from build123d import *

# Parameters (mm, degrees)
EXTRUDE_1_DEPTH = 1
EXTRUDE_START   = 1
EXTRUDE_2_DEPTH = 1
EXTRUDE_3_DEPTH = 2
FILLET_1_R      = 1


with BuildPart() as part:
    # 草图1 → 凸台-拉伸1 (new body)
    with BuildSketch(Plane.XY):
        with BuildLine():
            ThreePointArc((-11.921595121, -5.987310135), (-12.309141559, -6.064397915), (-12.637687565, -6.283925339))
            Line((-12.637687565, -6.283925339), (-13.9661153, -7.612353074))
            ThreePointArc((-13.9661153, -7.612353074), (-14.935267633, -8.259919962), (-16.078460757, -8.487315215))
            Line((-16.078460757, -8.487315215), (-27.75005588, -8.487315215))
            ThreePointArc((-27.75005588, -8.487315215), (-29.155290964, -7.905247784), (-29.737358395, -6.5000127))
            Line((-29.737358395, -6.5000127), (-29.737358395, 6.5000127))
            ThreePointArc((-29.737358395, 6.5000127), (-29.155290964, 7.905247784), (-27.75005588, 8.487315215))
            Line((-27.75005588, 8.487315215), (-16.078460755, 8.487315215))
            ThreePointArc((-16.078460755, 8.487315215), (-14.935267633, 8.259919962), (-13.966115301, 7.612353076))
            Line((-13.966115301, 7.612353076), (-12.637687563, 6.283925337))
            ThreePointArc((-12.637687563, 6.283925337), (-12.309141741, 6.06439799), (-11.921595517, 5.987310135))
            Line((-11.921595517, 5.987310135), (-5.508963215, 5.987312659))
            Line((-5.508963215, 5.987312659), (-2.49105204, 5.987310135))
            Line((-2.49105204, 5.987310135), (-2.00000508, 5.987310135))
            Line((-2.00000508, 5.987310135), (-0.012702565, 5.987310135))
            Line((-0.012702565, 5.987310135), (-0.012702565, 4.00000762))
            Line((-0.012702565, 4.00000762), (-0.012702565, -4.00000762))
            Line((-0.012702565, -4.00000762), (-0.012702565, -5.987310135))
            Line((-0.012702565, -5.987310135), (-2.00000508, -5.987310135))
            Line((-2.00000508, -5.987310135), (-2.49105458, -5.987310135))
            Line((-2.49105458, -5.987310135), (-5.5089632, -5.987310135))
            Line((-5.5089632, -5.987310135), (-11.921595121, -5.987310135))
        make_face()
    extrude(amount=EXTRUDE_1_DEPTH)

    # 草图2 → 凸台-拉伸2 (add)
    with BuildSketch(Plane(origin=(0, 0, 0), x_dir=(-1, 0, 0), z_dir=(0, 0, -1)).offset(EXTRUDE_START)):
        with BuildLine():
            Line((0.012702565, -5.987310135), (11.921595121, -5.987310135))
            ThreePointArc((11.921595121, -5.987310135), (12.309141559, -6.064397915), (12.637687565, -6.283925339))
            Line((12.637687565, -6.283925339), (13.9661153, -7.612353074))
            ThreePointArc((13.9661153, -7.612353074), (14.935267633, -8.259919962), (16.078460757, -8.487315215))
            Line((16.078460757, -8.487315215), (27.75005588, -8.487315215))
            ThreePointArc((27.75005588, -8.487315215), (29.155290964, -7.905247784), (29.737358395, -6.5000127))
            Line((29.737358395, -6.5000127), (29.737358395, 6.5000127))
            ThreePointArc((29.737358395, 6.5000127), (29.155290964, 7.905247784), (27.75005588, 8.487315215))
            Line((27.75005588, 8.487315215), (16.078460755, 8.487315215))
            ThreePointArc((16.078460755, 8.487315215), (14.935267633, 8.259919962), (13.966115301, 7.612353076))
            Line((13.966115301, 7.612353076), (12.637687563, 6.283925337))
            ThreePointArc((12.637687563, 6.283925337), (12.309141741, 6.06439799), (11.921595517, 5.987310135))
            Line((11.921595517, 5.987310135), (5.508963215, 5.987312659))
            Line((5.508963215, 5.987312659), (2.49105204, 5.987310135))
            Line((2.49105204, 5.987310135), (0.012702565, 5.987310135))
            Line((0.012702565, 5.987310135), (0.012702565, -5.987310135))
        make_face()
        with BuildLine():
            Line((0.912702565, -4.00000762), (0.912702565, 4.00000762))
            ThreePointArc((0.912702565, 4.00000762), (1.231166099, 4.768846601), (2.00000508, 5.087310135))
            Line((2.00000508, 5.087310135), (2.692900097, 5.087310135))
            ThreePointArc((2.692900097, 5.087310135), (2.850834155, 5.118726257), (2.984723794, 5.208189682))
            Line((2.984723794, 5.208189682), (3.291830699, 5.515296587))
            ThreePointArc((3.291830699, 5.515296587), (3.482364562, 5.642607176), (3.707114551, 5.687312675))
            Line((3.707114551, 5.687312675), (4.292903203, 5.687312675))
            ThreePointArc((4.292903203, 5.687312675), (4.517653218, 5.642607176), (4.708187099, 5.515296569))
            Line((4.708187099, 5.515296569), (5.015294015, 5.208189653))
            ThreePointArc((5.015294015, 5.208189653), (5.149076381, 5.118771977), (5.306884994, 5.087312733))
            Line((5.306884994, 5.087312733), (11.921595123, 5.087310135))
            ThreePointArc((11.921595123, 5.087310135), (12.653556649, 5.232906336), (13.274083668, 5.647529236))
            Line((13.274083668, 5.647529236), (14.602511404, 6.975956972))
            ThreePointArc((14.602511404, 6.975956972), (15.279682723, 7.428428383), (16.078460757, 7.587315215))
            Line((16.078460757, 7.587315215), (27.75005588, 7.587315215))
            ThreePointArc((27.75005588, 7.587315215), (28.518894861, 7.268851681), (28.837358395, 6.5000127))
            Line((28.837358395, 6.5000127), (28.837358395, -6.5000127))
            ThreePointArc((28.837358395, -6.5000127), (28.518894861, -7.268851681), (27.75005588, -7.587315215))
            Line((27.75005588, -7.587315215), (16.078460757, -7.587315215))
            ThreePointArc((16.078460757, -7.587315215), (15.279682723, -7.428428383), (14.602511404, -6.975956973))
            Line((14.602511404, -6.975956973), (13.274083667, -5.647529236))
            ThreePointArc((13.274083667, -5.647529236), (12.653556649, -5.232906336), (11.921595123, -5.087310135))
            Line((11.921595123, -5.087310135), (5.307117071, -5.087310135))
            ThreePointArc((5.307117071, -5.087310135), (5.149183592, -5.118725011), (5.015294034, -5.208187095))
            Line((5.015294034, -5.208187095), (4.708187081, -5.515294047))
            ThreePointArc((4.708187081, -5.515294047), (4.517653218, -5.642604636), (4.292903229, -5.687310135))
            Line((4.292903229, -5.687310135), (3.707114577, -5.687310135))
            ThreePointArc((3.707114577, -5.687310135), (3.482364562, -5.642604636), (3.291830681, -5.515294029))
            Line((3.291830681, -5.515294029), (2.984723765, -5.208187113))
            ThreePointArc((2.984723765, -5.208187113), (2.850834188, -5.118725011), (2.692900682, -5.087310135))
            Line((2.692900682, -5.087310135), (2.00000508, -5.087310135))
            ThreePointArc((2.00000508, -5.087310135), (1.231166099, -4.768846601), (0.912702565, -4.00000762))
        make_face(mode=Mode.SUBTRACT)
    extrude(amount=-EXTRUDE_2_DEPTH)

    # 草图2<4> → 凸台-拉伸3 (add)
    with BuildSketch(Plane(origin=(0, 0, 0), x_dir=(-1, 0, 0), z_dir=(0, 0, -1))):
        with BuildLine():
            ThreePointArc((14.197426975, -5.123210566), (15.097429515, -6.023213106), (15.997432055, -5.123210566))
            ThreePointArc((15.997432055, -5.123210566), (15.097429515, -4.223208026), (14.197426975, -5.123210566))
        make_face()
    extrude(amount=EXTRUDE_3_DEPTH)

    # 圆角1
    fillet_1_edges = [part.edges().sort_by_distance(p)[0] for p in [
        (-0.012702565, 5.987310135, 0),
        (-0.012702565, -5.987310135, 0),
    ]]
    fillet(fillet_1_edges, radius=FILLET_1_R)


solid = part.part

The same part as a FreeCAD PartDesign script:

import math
import FreeCAD as App
import Part
import Sketcher
Q = App.Units.Quantity


def edges_at(feature, points):
    """Names of the edges that pass closest to the given points."""
    edges = feature.Shape.Edges
    near = lambda p: min(range(len(edges)), key=lambda i: edges[i].distToShape(Part.Vertex(*p))[0])
    return sorted({f"Edge{near(p) + 1}" for p in points})

doc = App.newDocument("Part")
body = doc.addObject("PartDesign::Body", "Body")

# Sketch on XY plane
sketch1 = body.newObject("Sketcher::SketchObject", "Sketch")
sketch1.AttachmentSupport = (doc.getObject("XY_Plane"), [""])
sketch1.MapMode = "FlatFace"
sketch1.addGeometry([
    Part.ArcOfCircle(Part.Circle(App.Vector(-11.921595, -7.000018, 0), App.Vector(0, 0, 1), 1.012708), math.radians(90), math.radians(135)),  # 0
    Part.LineSegment(App.Vector(-11.921595, -5.98731, 0), App.Vector(-0.012703, -5.98731, 0)),  # 1
    Part.LineSegment(App.Vector(-0.012703, -5.98731, 0), App.Vector(-0.012703, 5.98731, 0)),  # 2
    Part.LineSegment(App.Vector(-0.012703, 5.98731, 0), App.Vector(-2.491052, 5.98731, 0)),  # 3
    Part.LineSegment(App.Vector(-2.491052, 5.98731, 0), App.Vector(-5.508963, 5.987313, 0)),  # 4
    Part.LineSegment(App.Vector(-5.508963, 5.987313, 0), App.Vector(-11.921596, 5.98731, 0)),  # 5
    Part.ArcOfCircle(Part.Circle(App.Vector(-11.921595, 7.000018, 0), App.Vector(0, 0, 1), 1.012708), math.radians(-135), math.radians(-90.000022)),  # 6
    Part.LineSegment(App.Vector(-12.637688, 6.283925, 0), App.Vector(-13.966115, 7.612353, 0)),  # 7
    Part.ArcOfCircle(Part.Circle(App.Vector(-16.078461, 5.500008, 0), App.Vector(0, 0, 1), 2.987308), math.radians(45), math.radians(90)),  # 8
    Part.LineSegment(App.Vector(-16.078461, 8.487315, 0), App.Vector(-27.750056, 8.487315, 0)),  # 9
    Part.ArcOfCircle(Part.Circle(App.Vector(-27.750056, 6.500013, 0), App.Vector(0, 0, 1), 1.987303), math.radians(90), math.radians(180)),  # 10
    Part.LineSegment(App.Vector(-29.737358, 6.500013, 0), App.Vector(-29.737358, -6.500013, 0)),  # 11
    Part.ArcOfCircle(Part.Circle(App.Vector(-27.750056, -6.500013, 0), App.Vector(0, 0, 1), 1.987303), math.radians(-180), math.radians(-90)),  # 12
    Part.LineSegment(App.Vector(-27.750056, -8.487315, 0), App.Vector(-16.078461, -8.487315, 0)),  # 13
    Part.ArcOfCircle(Part.Circle(App.Vector(-16.078461, -5.500008, 0), App.Vector(0, 0, 1), 2.987308), math.radians(-90), math.radians(-45)),  # 14
    Part.LineSegment(App.Vector(-13.966115, -7.612353, 0), App.Vector(-12.637688, -6.283925, 0)),  # 15
], False)
sketch1.addConstraint([
    Sketcher.Constraint("Tangent", 0, 1, 1, 1),
    Sketcher.Constraint("Coincident", 1, 2, 2, 1),
    Sketcher.Constraint("Coincident", 2, 2, 3, 1),
    Sketcher.Constraint("Coincident", 3, 2, 4, 1),
    Sketcher.Constraint("Coincident", 4, 2, 5, 1),
    Sketcher.Constraint("Tangent", 5, 2, 6, 2),
    Sketcher.Constraint("Tangent", 6, 1, 7, 1),
    Sketcher.Constraint("Tangent", 7, 2, 8, 1),
    Sketcher.Constraint("Tangent", 8, 2, 9, 1),
    Sketcher.Constraint("Tangent", 9, 2, 10, 1),
    Sketcher.Constraint("Tangent", 10, 2, 11, 1),
    Sketcher.Constraint("Tangent", 11, 2, 12, 1),
    Sketcher.Constraint("Tangent", 12, 2, 13, 1),
    Sketcher.Constraint("Tangent", 13, 2, 14, 1),
    Sketcher.Constraint("Tangent", 14, 2, 15, 1),
    Sketcher.Constraint("Tangent", 15, 2, 0, 2),
    Sketcher.Constraint("Horizontal", 1),
    Sketcher.Constraint("Vertical", 2),
    Sketcher.Constraint("Horizontal", 3),
    Sketcher.Constraint("Horizontal", 9),
    Sketcher.Constraint("Vertical", 11),
    Sketcher.Constraint("Horizontal", 13),
    Sketcher.Constraint("Equal", 0, 6),
    Sketcher.Constraint("Equal", 10, 12),
    Sketcher.Constraint("Equal", 8, 14),
    Sketcher.Constraint("Symmetric", 0, 3, 6, 3, -1),
    Sketcher.Constraint("Symmetric", 8, 3, 14, 3, -1),
    Sketcher.Constraint("Parallel", 4, 5),
    Sketcher.Constraint("Perpendicular", 7, 15),
    Sketcher.Constraint("Horizontal", 3, 2, 5, 2),
    Sketcher.Constraint("Radius", 0, Q("1.012708 mm")),
    Sketcher.Constraint("Radius", 8, Q("2.987308 mm")),
    Sketcher.Constraint("Radius", 10, Q("1.987303 mm")),
    Sketcher.Constraint("DistanceX", 3, 2, 3, 1, Q("2.478349 mm")),
    Sketcher.Constraint("DistanceY", 2, 1, 2, 2, Q("11.97462 mm")),
    Sketcher.Constraint("Distance", 4, Q("3.017911 mm")),
    Sketcher.Constraint("Distance", 7, Q("1.878681 mm")),
    Sketcher.Constraint("DistanceX", 1, 1, 1, 2, Q("11.908893 mm")),
    Sketcher.Constraint("DistanceX", 9, 2, 9, 1, Q("11.671595 mm")),
    Sketcher.Constraint("DistanceX", 8, 3, -1, 1, Q("16.078461 mm")),
])
pad1 = body.newObject("PartDesign::Pad", "Pad")
pad1.Profile = sketch1
pad1.Length = 1

# Sketch on XY plane
sketch2 = body.newObject("Sketcher::SketchObject", "Sketch001")
sketch2.AttachmentSupport = (doc.getObject("XY_Plane"), [""])
sketch2.MapMode = "FlatFace"
sketch2.AttachmentOffset = App.Placement(App.Vector(0, 0, -1), App.Rotation())
sketch2.addGeometry([
    Part.LineSegment(App.Vector(-0.012703, -5.98731, 0), App.Vector(-11.921595, -5.98731, 0)),  # 0
    Part.ArcOfCircle(Part.Circle(App.Vector(-11.921595, -7.000018, 0), App.Vector(0, 0, 1), 1.012708), math.radians(90), math.radians(135)),  # 1
    Part.LineSegment(App.Vector(-12.637688, -6.283925, 0), App.Vector(-13.966115, -7.612353, 0)),  # 2
    Part.ArcOfCircle(Part.Circle(App.Vector(-16.078461, -5.500008, 0), App.Vector(0, 0, 1), 2.987308), math.radians(-90), math.radians(-45)),  # 3
    Part.LineSegment(App.Vector(-16.078461, -8.487315, 0), App.Vector(-27.750056, -8.487315, 0)),  # 4
    Part.ArcOfCircle(Part.Circle(App.Vector(-27.750056, -6.500013, 0), App.Vector(0, 0, 1), 1.987303), math.radians(-180), math.radians(-90)),  # 5
    Part.LineSegment(App.Vector(-29.737358, -6.500013, 0), App.Vector(-29.737358, 6.500013, 0)),  # 6
    Part.ArcOfCircle(Part.Circle(App.Vector(-27.750056, 6.500013, 0), App.Vector(0, 0, 1), 1.987303), math.radians(90), math.radians(180)),  # 7
    Part.LineSegment(App.Vector(-27.750056, 8.487315, 0), App.Vector(-16.078461, 8.487315, 0)),  # 8
    Part.ArcOfCircle(Part.Circle(App.Vector(-16.078461, 5.500008, 0), App.Vector(0, 0, 1), 2.987308), math.radians(45), math.radians(90)),  # 9
    Part.LineSegment(App.Vector(-13.966115, 7.612353, 0), App.Vector(-12.637688, 6.283925, 0)),  # 10
    Part.ArcOfCircle(Part.Circle(App.Vector(-11.921595, 7.000018, 0), App.Vector(0, 0, 1), 1.012708), math.radians(-135), math.radians(-90.000022)),  # 11
    Part.LineSegment(App.Vector(-11.921596, 5.98731, 0), App.Vector(-5.508963, 5.987313, 0)),  # 12
    Part.LineSegment(App.Vector(-5.508963, 5.987313, 0), App.Vector(-2.491052, 5.98731, 0)),  # 13
    Part.LineSegment(App.Vector(-2.491052, 5.98731, 0), App.Vector(-0.012703, 5.98731, 0)),  # 14
    Part.LineSegment(App.Vector(-0.012703, 5.98731, 0), App.Vector(-0.012703, -5.98731, 0)),  # 15
    Part.ArcOfCircle(Part.Circle(App.Vector(-2.000005, -4.000008, 0), App.Vector(0, 0, 1), 1.087303), math.radians(-90), math.radians(0)),  # 16
    Part.LineSegment(App.Vector(-0.912703, -4.000008, 0), App.Vector(-0.912703, 4.000008, 0)),  # 17
    Part.ArcOfCircle(Part.Circle(App.Vector(-2.000005, 4.000008, 0), App.Vector(0, 0, 1), 1.087303), math.radians(0), math.radians(90)),  # 18
    Part.LineSegment(App.Vector(-2.000005, 5.08731, 0), App.Vector(-2.6929, 5.08731, 0)),  # 19
    Part.ArcOfCircle(Part.Circle(App.Vector(-2.692897, 5.500013, 0), App.Vector(0, 0, 1), 0.412702), math.radians(-135.000356), math.radians(-90.000386)),  # 20
    Part.LineSegment(App.Vector(-2.984724, 5.20819, 0), App.Vector(-3.291831, 5.515297, 0)),  # 21
    Part.ArcOfCircle(Part.Circle(App.Vector(-3.707114, 5.100013, 0), App.Vector(0, 0, 1), 0.5873), math.radians(45.000015), math.radians(90.000013)),  # 22
    Part.LineSegment(App.Vector(-3.707115, 5.687313, 0), App.Vector(-4.292903, 5.687313, 0)),  # 23
    Part.ArcOfCircle(Part.Circle(App.Vector(-4.292903, 5.100013, 0), App.Vector(0, 0, 1), 0.5873), math.radians(89.999985), math.radians(134.999988)),  # 24
    Part.LineSegment(App.Vector(-4.708187, 5.515297, 0), App.Vector(-5.015294, 5.20819, 0)),  # 25
    Part.ArcOfCircle(Part.Circle(App.Vector(-5.307117, 5.500013, 0), App.Vector(0, 0, 1), 0.4127), math.radians(-89.967792), math.radians(-45.000016)),  # 26
    Part.LineSegment(App.Vector(-5.306885, 5.087313, 0), App.Vector(-11.921595, 5.08731, 0)),  # 27
    Part.ArcOfCircle(Part.Circle(App.Vector(-11.921595, 7.000018, 0), App.Vector(0, 0, 1), 1.912708), math.radians(-135), math.radians(-90)),  # 28
    Part.LineSegment(App.Vector(-13.274084, 5.647529, 0), App.Vector(-14.602511, 6.975957, 0)),  # 29
    Part.ArcOfCircle(Part.Circle(App.Vector(-16.078461, 5.500008, 0), App.Vector(0, 0, 1), 2.087308), math.radians(45), math.radians(90)),  # 30
    Part.LineSegment(App.Vector(-16.078461, 7.587315, 0), App.Vector(-27.750056, 7.587315, 0)),  # 31
    Part.ArcOfCircle(Part.Circle(App.Vector(-27.750056, 6.500013, 0), App.Vector(0, 0, 1), 1.087303), math.radians(90), math.radians(180)),  # 32
    Part.LineSegment(App.Vector(-28.837358, 6.500013, 0), App.Vector(-28.837358, -6.500013, 0)),  # 33
    Part.ArcOfCircle(Part.Circle(App.Vector(-27.750056, -6.500013, 0), App.Vector(0, 0, 1), 1.087303), math.radians(-180), math.radians(-90)),  # 34
    Part.LineSegment(App.Vector(-27.750056, -7.587315, 0), App.Vector(-16.078461, -7.587315, 0)),  # 35
    Part.ArcOfCircle(Part.Circle(App.Vector(-16.078461, -5.500008, 0), App.Vector(0, 0, 1), 2.087308), math.radians(-90), math.radians(-45)),  # 36
    Part.LineSegment(App.Vector(-14.602511, -6.975957, 0), App.Vector(-13.274084, -5.647529, 0)),  # 37
    Part.ArcOfCircle(Part.Circle(App.Vector(-11.921595, -7.000018, 0), App.Vector(0, 0, 1), 1.912708), math.radians(90), math.radians(135)),  # 38
    Part.LineSegment(App.Vector(-11.921595, -5.08731, 0), App.Vector(-5.307117, -5.08731, 0)),  # 39
    Part.ArcOfCircle(Part.Circle(App.Vector(-5.307117, -5.50001, 0), App.Vector(0, 0, 1), 0.4127), math.radians(45.000018), math.radians(90.000016)),  # 40
    Part.LineSegment(App.Vector(-5.015294, -5.208187, 0), App.Vector(-4.708187, -5.515294, 0)),  # 41
    Part.ArcOfCircle(Part.Circle(App.Vector(-4.292903, -5.10001, 0), App.Vector(0, 0, 1), 0.5873), math.radians(-134.999985), math.radians(-89.999987)),  # 42
    Part.LineSegment(App.Vector(-4.292903, -5.68731, 0), App.Vector(-3.707115, -5.68731, 0)),  # 43
    Part.ArcOfCircle(Part.Circle(App.Vector(-3.707114, -5.10001, 0), App.Vector(0, 0, 1), 0.5873), math.radians(-90.000015), math.radians(-45.000012)),  # 44
    Part.LineSegment(App.Vector(-3.291831, -5.515294, 0), App.Vector(-2.984724, -5.208187, 0)),  # 45
    Part.ArcOfCircle(Part.Circle(App.Vector(-2.692901, -5.50001, 0), App.Vector(0, 0, 1), 0.4127), math.radians(89.999981), math.radians(134.999985)),  # 46
    Part.LineSegment(App.Vector(-2.692901, -5.08731, 0), App.Vector(-2.000005, -5.08731, 0)),  # 47
], False)
sketch2.addConstraint([
    Sketcher.Constraint("Tangent", 0, 2, 1, 1),
    Sketcher.Constraint("Tangent", 1, 2, 2, 1),
    Sketcher.Constraint("Tangent", 2, 2, 3, 2),
    Sketcher.Constraint("Tangent", 3, 1, 4, 1),
    Sketcher.Constraint("Tangent", 4, 2, 5, 2),
    Sketcher.Constraint("Tangent", 5, 1, 6, 1),
    Sketcher.Constraint("Tangent", 6, 2, 7, 2),
    Sketcher.Constraint("Tangent", 7, 1, 8, 1),
    Sketcher.Constraint("Tangent", 8, 2, 9, 2),
    Sketcher.Constraint("Tangent", 9, 1, 10, 1),
    Sketcher.Constraint("Tangent", 10, 2, 11, 1),
    Sketcher.Constraint("Tangent", 11, 2, 12, 1),
    Sketcher.Constraint("Coincident", 12, 2, 13, 1),
    Sketcher.Constraint("Coincident", 13, 2, 14, 1),
    Sketcher.Constraint("Coincident", 14, 2, 15, 1),
    Sketcher.Constraint("Coincident", 15, 2, 0, 1),
    Sketcher.Constraint("Tangent", 16, 2, 17, 1),
    Sketcher.Constraint("Tangent", 17, 2, 18, 1),
    Sketcher.Constraint("Tangent", 18, 2, 19, 1),
    Sketcher.Constraint("Coincident", 19, 2, 20, 2),
    Sketcher.Constraint("Coincident", 20, 1, 21, 1),
    Sketcher.Constraint("Tangent", 21, 2, 22, 1),
    Sketcher.Constraint("Tangent", 22, 2, 23, 1),
    Sketcher.Constraint("Tangent", 23, 2, 24, 1),
    Sketcher.Constraint("Tangent", 24, 2, 25, 1),
    Sketcher.Constraint("Tangent", 25, 2, 26, 2),
    Sketcher.Constraint("Coincident", 26, 1, 27, 1),
    Sketcher.Constraint("Tangent", 27, 2, 28, 2),
    Sketcher.Constraint("Tangent", 28, 1, 29, 1),
    Sketcher.Constraint("Tangent", 29, 2, 30, 1),
    Sketcher.Constraint("Tangent", 30, 2, 31, 1),
    Sketcher.Constraint("Tangent", 31, 2, 32, 1),
    Sketcher.Constraint("Tangent", 32, 2, 33, 1),
    Sketcher.Constraint("Tangent", 33, 2, 34, 1),
    Sketcher.Constraint("Tangent", 34, 2, 35, 1),
    Sketcher.Constraint("Tangent", 35, 2, 36, 1),
    Sketcher.Constraint("Tangent", 36, 2, 37, 1),
    Sketcher.Constraint("Tangent", 37, 2, 38, 2),
    Sketcher.Constraint("Tangent", 38, 1, 39, 1),
    Sketcher.Constraint("Tangent", 39, 2, 40, 2),
    Sketcher.Constraint("Tangent", 40, 1, 41, 1),
    Sketcher.Constraint("Tangent", 41, 2, 42, 1),
    Sketcher.Constraint("Tangent", 42, 2, 43, 1),
    Sketcher.Constraint("Tangent", 43, 2, 44, 1),
    Sketcher.Constraint("Tangent", 44, 2, 45, 1),
    Sketcher.Constraint("Tangent", 45, 2, 46, 2),
    Sketcher.Constraint("Tangent", 46, 1, 47, 1),
    Sketcher.Constraint("Tangent", 47, 2, 16, 1),
    Sketcher.Constraint("Horizontal", 0),
    Sketcher.Constraint("Horizontal", 4),
    Sketcher.Constraint("Vertical", 6),
    Sketcher.Constraint("Horizontal", 8),
    Sketcher.Constraint("Horizontal", 14),
    Sketcher.Constraint("Vertical", 15),
    Sketcher.Constraint("Vertical", 17),
    Sketcher.Constraint("Horizontal", 19),
    Sketcher.Constraint("Horizontal", 23),
    Sketcher.Constraint("Horizontal", 31),
    Sketcher.Constraint("Vertical", 33),
    Sketcher.Constraint("Horizontal", 35),
    Sketcher.Constraint("Horizontal", 39),
    Sketcher.Constraint("Horizontal", 43),
    Sketcher.Constraint("Horizontal", 47),
    Sketcher.Constraint("Coincident", 28, 3, 11, 3),
    Sketcher.Constraint("Coincident", 30, 3, 9, 3),
    Sketcher.Constraint("Coincident", 32, 3, 7, 3),
    Sketcher.Constraint("Coincident", 34, 3, 5, 3),
    Sketcher.Constraint("Coincident", 36, 3, 3, 3),
    Sketcher.Constraint("Coincident", 38, 3, 1, 3),
    Sketcher.Constraint("Equal", 5, 7),
    Sketcher.Constraint("Equal", 3, 9),
    Sketcher.Constraint("Equal", 1, 11),
    Sketcher.Constraint("Equal", 16, 18),
    Sketcher.Constraint("Equal", 22, 24),
    Sketcher.Constraint("Equal", 18, 32),
    Sketcher.Constraint("Equal", 28, 38),
    Sketcher.Constraint("Equal", 26, 40),
    Sketcher.Constraint("Equal", 24, 42),
    Sketcher.Constraint("Equal", 42, 44),
    Sketcher.Constraint("Equal", 40, 46),
    Sketcher.Constraint("Symmetric", 3, 3, 9, 3, -1),
    Sketcher.Constraint("Symmetric", 1, 3, 11, 3, -1),
    Sketcher.Constraint("Symmetric", 26, 3, 40, 3, -1),
    Sketcher.Constraint("Symmetric", 24, 3, 42, 3, -1),
    Sketcher.Constraint("Symmetric", 20, 3, 46, 3, -1),
    Sketcher.Constraint("Symmetric", 21, 2, 44, 2, -1),
    Sketcher.Constraint("Perpendicular", 2, 10),
    Sketcher.Constraint("Parallel", 12, 13),
    Sketcher.Constraint("Parallel", 10, 21),
    Sketcher.Constraint("Perpendicular", 21, 25),
    Sketcher.Constraint("Parallel", 13, 27),
    Sketcher.Constraint("Perpendicular", 25, 29),
    Sketcher.Constraint("Horizontal", 20, 3, 26, 3),
    Sketcher.Constraint("Horizontal", 20, 1, 25, 2),
    Sketcher.Constraint("Vertical", 46, 3, 19, 2),
    Sketcher.Constraint("Radius", 22, Q("0.5873 mm")),
    Sketcher.Constraint("Radius", 26, Q("0.4127 mm")),
    Sketcher.Constraint("Radius", 1, Q("1.012708 mm")),
    Sketcher.Constraint("Radius", 3, Q("2.987308 mm")),
    Sketcher.Constraint("Radius", 5, Q("1.987303 mm")),
    Sketcher.Constraint("Radius", 16, Q("1.087303 mm")),
    Sketcher.Constraint("DistanceX", 14, 1, 14, 2, Q("2.478349 mm")),
    Sketcher.Constraint("DistanceX", 23, 2, 23, 1, Q("0.585789 mm")),
    Sketcher.Constraint("DistanceX", 39, 1, 39, 2, Q("6.614478 mm")),
    Sketcher.Constraint("DistanceY", 15, 2, 15, 1, Q("11.97462 mm")),
    Sketcher.Constraint("DistanceX", 46, 3, -1, 1, Q("2.692901 mm")),
    Sketcher.Constraint("Distance", 2, Q("1.878681 mm")),
    Sketcher.Constraint("Distance", 13, Q("3.017911 mm")),
    Sketcher.Constraint("Distance", 27, Q("6.61471 mm")),
    Sketcher.Constraint("DistanceX", 0, 2, 0, 1, Q("11.908893 mm")),
    Sketcher.Constraint("DistanceX", 4, 2, 4, 1, Q("11.671595 mm")),
    Sketcher.Constraint("DistanceX", 19, 2, 19, 1, Q("0.692895 mm")),
    Sketcher.Constraint("DistanceX", 3, 3, -1, 1, Q("16.078461 mm")),
])
pad2 = body.newObject("PartDesign::Pad", "Pad001")
pad2.Profile = sketch2
pad2.Length = 1

# Sketch on XY plane
sketch3 = body.newObject("Sketcher::SketchObject", "Sketch002")
sketch3.AttachmentSupport = (doc.getObject("XY_Plane"), [""])
sketch3.MapMode = "FlatFace"
sketch3.addGeometry(Part.Circle(App.Vector(-15.09743, -5.123211, 0), App.Vector(0, 0, 1), 0.900003), False)
sketch3.addConstraint([
    Sketcher.Constraint("Diameter", 0, Q("1.800005 mm")),
    Sketcher.Constraint("DistanceX", 0, 3, -1, 1, Q("15.09743 mm")),
    Sketcher.Constraint("DistanceY", 0, 3, -1, 1, Q("5.123211 mm")),
])
pad3 = body.newObject("PartDesign::Pad", "Pad002")
pad3.Profile = sketch3
pad3.Length = 2
pad3.Reversed = True
doc.recompute()

fillet = body.newObject("PartDesign::Fillet", "Fillet")
fillet.Base = (pad3, edges_at(pad3, [(-0.013, 5.987, 0), (-0.013, -5.987, 0)]))
fillet.Radius = 1

doc.recompute()
